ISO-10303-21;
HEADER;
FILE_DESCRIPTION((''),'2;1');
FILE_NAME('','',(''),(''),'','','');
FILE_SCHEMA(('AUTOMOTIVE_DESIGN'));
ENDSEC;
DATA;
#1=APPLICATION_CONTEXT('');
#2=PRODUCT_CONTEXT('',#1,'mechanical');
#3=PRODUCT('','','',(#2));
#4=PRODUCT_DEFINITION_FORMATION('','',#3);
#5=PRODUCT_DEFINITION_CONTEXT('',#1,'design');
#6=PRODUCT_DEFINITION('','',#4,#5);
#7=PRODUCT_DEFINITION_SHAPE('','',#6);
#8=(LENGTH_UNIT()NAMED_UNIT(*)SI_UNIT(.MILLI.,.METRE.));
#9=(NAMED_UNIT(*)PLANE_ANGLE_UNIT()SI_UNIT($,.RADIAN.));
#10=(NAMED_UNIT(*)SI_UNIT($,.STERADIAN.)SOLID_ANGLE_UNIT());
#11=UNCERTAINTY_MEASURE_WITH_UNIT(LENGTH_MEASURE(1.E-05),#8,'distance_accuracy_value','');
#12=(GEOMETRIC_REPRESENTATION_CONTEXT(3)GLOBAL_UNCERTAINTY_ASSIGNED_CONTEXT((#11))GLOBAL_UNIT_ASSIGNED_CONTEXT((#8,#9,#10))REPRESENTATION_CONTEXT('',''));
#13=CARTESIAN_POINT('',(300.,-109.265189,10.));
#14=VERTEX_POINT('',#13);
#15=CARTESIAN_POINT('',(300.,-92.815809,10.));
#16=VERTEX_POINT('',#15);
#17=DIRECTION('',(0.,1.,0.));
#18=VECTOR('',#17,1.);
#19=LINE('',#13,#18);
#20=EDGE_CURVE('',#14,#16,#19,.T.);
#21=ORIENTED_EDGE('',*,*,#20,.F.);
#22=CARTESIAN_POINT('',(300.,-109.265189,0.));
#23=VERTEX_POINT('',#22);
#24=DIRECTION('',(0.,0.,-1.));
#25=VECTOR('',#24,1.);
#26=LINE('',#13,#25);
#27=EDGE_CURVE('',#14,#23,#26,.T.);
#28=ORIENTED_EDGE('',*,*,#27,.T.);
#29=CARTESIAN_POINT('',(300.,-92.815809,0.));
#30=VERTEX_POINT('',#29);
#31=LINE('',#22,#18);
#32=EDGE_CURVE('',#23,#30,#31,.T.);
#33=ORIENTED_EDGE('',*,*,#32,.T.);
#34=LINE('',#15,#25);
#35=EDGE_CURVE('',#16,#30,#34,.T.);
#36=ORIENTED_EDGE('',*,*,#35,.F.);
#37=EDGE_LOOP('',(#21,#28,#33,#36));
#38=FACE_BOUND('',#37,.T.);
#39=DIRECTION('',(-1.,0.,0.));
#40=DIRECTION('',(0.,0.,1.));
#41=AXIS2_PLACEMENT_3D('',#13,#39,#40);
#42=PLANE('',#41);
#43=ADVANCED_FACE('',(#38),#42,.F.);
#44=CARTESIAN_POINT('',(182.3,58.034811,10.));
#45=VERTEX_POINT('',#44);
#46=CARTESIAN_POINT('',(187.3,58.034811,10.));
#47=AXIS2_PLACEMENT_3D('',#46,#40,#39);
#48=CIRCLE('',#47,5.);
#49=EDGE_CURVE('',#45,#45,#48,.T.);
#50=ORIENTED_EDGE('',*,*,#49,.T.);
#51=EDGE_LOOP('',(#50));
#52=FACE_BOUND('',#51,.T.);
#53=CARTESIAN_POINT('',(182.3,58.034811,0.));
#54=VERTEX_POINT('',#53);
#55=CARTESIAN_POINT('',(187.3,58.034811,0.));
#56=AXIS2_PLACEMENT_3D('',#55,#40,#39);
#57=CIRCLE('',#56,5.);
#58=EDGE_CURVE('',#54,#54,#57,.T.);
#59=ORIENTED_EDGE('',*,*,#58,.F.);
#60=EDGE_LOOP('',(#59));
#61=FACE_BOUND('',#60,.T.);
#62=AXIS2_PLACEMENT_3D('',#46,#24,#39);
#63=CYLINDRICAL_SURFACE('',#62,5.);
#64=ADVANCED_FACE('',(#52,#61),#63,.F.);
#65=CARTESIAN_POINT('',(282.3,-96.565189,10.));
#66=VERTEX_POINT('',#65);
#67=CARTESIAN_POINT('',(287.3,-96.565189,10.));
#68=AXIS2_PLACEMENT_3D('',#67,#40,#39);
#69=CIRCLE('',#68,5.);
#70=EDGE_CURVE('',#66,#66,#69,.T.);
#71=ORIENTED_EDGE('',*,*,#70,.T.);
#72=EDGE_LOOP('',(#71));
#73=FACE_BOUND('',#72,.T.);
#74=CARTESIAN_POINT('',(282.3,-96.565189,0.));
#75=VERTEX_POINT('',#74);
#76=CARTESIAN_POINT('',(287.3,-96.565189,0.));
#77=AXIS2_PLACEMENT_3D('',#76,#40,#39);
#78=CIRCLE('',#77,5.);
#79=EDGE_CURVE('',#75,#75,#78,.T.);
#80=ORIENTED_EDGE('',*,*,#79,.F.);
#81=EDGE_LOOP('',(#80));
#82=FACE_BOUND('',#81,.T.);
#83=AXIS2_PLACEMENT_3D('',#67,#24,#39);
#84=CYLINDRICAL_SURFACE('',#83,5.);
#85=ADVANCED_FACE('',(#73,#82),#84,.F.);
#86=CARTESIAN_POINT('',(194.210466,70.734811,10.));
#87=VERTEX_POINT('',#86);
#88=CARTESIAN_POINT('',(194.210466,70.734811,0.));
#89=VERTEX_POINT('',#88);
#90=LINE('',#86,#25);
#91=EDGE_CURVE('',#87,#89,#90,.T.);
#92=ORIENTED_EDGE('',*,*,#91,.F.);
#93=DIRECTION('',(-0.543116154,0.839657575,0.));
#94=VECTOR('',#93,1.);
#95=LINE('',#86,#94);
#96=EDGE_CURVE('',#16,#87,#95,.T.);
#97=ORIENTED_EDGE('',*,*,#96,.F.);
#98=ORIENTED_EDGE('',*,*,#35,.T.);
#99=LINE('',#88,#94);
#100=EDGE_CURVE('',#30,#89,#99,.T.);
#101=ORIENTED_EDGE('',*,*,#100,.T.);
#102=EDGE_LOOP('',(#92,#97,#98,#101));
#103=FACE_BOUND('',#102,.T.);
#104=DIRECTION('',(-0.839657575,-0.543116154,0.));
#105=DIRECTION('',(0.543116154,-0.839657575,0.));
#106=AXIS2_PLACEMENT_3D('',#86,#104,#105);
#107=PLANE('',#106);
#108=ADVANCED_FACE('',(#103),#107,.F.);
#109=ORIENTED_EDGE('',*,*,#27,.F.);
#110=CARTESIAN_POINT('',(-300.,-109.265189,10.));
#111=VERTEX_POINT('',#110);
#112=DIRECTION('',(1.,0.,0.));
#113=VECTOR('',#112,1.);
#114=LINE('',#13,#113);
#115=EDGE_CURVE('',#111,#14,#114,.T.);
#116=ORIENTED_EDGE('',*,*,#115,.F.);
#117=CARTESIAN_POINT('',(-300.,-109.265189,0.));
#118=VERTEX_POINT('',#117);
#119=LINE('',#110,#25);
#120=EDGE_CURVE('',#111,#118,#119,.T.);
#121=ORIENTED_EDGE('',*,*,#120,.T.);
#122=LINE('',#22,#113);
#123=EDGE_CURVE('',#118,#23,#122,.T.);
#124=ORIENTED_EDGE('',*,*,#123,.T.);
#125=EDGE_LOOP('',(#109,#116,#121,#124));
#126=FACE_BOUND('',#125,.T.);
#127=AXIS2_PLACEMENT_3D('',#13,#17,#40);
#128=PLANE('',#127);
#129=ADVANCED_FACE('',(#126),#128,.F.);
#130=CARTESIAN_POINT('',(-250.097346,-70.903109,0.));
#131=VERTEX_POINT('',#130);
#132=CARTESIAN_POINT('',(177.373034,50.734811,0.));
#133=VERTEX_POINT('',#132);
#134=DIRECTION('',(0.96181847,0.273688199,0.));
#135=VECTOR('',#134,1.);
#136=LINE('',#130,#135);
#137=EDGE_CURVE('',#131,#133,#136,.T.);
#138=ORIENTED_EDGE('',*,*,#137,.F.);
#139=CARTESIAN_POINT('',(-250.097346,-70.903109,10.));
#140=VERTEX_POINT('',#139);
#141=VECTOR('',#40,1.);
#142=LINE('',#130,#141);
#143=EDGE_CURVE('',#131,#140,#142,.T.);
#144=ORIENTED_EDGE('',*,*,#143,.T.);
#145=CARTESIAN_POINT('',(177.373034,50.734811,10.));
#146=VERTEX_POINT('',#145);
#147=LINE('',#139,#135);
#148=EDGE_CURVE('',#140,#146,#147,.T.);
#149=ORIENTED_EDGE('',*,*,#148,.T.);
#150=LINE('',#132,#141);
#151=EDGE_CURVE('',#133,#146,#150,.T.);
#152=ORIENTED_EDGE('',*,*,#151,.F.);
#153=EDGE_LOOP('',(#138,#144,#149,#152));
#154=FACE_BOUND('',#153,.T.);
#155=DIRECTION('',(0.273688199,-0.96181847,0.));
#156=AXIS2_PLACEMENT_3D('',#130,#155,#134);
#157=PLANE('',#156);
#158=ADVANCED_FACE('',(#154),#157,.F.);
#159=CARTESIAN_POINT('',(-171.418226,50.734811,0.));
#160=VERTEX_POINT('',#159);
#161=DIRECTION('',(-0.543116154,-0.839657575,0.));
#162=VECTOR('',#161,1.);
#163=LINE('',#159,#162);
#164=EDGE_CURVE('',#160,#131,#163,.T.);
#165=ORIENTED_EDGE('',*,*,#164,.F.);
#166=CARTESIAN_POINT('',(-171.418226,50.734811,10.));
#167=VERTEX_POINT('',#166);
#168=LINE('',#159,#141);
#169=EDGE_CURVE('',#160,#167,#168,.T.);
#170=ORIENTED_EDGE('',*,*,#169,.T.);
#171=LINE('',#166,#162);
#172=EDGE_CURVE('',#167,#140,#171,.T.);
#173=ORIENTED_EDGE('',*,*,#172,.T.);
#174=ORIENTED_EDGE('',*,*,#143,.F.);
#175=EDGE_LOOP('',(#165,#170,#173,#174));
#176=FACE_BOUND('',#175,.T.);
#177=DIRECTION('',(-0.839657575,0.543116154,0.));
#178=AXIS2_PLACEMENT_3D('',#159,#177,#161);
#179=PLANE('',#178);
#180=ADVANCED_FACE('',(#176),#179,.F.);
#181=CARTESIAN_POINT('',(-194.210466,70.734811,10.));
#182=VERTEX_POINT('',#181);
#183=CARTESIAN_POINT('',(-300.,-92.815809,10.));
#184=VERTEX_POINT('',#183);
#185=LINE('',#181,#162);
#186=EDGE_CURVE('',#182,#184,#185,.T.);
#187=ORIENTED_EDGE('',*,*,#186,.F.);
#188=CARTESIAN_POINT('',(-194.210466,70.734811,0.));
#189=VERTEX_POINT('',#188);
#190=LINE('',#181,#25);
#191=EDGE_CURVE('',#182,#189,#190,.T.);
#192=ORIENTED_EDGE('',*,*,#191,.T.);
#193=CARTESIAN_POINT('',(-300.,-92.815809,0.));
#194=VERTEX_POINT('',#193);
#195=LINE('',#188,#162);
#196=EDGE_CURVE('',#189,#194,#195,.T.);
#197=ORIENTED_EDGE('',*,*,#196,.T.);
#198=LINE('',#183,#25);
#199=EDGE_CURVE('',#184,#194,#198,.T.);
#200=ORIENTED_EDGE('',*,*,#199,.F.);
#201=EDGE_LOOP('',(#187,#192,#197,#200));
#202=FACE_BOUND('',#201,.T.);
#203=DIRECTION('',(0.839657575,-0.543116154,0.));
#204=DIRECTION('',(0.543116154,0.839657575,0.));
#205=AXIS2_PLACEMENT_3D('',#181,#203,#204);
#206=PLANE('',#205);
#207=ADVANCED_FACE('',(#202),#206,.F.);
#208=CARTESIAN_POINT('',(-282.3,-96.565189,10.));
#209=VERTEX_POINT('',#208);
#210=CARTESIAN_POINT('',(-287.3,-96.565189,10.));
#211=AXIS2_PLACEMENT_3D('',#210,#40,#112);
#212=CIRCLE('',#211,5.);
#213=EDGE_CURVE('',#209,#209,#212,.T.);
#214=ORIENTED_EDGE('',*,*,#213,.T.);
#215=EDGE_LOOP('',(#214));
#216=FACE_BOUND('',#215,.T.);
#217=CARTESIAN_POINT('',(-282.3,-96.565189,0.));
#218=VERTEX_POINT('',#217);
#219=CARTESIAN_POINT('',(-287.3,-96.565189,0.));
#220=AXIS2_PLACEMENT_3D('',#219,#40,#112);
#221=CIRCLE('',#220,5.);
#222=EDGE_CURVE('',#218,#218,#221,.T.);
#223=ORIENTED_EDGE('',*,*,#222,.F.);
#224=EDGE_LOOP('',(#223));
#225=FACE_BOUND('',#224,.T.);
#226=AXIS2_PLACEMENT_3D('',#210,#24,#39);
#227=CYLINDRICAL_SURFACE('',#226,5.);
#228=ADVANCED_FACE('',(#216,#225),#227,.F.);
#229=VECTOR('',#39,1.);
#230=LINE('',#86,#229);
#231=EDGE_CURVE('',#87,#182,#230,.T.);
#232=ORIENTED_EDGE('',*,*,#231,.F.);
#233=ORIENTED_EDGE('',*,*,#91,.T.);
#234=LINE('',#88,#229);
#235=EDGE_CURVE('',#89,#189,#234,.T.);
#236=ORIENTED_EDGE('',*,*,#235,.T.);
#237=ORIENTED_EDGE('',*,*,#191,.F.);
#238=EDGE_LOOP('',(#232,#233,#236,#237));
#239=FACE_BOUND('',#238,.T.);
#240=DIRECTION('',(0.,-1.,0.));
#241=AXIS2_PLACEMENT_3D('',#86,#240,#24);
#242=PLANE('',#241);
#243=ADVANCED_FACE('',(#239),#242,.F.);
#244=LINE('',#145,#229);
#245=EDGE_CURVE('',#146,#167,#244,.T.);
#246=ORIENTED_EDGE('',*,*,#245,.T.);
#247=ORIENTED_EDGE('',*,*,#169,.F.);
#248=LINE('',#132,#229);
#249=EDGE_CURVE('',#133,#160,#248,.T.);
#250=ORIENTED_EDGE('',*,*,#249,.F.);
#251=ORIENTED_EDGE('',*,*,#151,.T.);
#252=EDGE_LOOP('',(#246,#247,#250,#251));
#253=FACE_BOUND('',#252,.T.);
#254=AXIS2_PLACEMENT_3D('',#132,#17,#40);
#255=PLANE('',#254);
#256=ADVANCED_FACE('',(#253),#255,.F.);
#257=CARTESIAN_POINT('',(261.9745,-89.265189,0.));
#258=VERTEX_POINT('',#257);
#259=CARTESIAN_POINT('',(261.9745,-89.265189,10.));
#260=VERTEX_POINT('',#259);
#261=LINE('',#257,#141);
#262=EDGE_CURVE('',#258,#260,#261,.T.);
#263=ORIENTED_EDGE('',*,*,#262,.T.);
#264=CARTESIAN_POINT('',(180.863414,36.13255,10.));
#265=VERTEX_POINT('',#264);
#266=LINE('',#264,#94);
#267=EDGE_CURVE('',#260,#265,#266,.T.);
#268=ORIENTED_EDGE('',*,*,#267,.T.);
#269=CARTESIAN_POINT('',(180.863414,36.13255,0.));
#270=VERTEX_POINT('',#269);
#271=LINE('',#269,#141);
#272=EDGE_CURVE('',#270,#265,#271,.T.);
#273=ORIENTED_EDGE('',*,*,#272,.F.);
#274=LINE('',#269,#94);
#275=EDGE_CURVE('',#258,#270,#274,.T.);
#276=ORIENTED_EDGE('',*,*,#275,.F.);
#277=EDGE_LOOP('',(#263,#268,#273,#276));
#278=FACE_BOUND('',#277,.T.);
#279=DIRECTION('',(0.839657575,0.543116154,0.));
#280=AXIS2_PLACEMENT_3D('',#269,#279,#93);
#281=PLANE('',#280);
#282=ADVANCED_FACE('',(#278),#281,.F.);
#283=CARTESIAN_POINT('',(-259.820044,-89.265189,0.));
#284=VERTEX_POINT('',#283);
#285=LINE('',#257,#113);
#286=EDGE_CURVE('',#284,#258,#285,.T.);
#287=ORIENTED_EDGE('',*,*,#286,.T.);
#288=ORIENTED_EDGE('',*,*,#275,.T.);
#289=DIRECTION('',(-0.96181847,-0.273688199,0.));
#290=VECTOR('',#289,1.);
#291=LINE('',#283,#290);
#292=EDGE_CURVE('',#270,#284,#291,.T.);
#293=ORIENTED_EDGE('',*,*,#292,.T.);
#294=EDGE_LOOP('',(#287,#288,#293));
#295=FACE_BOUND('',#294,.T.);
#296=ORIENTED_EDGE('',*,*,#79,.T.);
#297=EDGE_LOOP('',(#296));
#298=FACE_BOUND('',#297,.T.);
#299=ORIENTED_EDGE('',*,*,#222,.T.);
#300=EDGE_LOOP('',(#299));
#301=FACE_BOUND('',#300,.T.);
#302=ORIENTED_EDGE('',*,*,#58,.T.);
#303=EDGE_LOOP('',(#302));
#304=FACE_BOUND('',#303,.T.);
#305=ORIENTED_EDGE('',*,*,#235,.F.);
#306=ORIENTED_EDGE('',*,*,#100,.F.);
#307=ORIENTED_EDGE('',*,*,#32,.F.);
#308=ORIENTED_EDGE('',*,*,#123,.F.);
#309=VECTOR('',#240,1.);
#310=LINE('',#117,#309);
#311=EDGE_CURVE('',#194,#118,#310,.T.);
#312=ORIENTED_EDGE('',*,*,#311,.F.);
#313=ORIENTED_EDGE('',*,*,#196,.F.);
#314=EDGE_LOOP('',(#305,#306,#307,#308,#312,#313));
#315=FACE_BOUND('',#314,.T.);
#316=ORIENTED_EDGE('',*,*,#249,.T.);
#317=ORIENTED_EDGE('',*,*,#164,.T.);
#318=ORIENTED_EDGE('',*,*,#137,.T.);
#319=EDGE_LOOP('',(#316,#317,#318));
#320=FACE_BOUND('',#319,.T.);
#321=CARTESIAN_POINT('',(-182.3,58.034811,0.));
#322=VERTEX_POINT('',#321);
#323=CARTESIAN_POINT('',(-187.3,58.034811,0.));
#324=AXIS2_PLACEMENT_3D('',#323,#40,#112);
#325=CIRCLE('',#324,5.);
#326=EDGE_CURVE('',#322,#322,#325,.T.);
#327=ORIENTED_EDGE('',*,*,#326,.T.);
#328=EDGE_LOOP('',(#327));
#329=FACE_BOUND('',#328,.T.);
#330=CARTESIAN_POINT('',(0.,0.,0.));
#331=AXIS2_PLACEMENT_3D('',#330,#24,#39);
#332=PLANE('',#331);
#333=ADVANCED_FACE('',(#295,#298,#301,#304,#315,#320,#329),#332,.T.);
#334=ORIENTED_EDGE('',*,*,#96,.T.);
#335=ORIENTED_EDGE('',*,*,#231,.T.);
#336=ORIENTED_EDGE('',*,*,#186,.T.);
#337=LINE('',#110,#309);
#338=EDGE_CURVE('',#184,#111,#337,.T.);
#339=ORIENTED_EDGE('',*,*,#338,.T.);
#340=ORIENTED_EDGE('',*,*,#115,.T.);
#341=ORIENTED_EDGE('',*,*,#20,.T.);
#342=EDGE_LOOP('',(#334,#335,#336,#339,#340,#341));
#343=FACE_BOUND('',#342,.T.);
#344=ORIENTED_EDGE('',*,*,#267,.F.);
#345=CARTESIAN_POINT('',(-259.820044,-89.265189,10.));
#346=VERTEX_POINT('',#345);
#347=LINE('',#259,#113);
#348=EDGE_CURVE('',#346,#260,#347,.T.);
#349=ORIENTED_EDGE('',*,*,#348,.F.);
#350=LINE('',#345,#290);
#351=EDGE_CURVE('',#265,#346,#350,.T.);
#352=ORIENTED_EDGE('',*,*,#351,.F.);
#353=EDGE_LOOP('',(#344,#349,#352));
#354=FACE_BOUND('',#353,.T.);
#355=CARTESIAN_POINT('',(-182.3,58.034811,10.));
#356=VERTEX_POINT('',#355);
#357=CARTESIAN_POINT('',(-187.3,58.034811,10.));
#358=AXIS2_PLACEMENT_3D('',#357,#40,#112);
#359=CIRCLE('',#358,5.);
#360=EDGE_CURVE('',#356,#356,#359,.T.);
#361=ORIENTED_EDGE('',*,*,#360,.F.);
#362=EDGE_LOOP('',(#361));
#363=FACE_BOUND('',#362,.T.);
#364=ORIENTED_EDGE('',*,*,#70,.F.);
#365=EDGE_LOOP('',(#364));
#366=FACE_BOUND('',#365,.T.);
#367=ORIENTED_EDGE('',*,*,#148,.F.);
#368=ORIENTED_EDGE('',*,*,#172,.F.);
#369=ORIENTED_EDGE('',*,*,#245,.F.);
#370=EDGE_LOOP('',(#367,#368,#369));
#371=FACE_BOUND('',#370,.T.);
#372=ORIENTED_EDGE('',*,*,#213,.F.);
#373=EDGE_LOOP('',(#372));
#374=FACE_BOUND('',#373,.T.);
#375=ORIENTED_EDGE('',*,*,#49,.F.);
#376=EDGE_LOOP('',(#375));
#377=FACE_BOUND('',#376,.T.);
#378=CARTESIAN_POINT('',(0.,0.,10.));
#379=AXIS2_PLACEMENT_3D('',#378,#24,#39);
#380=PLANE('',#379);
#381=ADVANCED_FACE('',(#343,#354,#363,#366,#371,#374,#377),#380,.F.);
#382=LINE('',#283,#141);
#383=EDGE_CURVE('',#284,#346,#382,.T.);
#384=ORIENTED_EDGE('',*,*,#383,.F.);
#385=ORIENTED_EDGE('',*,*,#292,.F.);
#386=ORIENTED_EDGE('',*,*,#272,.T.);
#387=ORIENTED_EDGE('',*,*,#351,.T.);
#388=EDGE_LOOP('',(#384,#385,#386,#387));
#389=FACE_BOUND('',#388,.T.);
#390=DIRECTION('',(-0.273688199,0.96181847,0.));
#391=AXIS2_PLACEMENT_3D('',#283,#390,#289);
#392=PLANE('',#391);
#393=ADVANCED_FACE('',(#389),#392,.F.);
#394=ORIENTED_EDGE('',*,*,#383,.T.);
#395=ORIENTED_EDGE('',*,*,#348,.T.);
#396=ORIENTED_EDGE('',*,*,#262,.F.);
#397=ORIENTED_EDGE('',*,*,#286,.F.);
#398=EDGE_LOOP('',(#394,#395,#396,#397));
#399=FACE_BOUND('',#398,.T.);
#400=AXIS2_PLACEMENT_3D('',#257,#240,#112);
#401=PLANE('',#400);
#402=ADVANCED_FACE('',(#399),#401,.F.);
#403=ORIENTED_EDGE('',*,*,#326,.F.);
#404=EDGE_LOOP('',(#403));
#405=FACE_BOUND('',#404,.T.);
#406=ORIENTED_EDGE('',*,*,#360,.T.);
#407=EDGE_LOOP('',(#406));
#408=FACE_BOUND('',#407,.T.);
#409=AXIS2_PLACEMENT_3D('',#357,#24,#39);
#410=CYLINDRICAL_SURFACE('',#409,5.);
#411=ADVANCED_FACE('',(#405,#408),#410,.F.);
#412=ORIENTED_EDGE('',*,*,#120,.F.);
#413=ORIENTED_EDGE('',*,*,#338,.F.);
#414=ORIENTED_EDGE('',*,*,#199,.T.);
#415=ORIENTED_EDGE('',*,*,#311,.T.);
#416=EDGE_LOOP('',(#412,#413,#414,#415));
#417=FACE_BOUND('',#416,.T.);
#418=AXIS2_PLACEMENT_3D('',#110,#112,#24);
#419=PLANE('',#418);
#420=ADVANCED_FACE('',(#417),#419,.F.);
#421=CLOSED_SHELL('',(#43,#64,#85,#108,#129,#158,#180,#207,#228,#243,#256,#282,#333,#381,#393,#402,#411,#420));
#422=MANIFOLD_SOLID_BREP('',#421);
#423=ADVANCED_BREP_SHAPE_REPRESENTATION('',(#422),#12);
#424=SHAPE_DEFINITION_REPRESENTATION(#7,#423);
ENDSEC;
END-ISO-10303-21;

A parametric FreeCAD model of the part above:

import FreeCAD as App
import Part
import Sketcher

V = App.Vector
Q = App.Units.Quantity

doc = App.newDocument("Part")
params = doc.addObject("Spreadsheet::Sheet", "Params")
for row, (alias, value) in enumerate([
    ("sketch1_diameter", "10 mm"),
    ("sketch1_width", "600 mm"),
    ("pad1_length", "10 mm"),
], start=1):
    params.set(f"A{row}", alias)
    params.set(f"B{row}", "=" + value)
    params.setAlias(f"B{row}", alias)

body = doc.addObject("PartDesign::Body", "Body")

sketch1 = body.newObject("Sketcher::SketchObject", "Sketch")
sketch1.AttachmentSupport = (doc.getObject("XY_Plane"), [""])
sketch1.MapMode = "FlatFace"
sketch1.addGeometry(Part.LineSegment(V(300, -109, 0), V(300, -93, 0)), False)
sketch1.addGeometry(Part.LineSegment(V(300, -93, 0), V(194, 71, 0)), False)
sketch1.addGeometry(Part.LineSegment(V(194, 71, 0), V(-194, 71, 0)), False)
sketch1.addGeometry(Part.LineSegment(V(-194, 71, 0), V(-300, -93, 0)), False)
sketch1.addGeometry(Part.LineSegment(V(-300, -93, 0), V(-300, -109, 0)), False)
sketch1.addGeometry(Part.LineSegment(V(-300, -109, 0), V(300, -109, 0)), False)
sketch1.addGeometry(Part.Circle(V(-287, -97, 0), V(0, 0, 1), 5), False)
sketch1.addGeometry(Part.Circle(V(287, -97, 0), V(0, 0, 1), 5), False)
sketch1.addGeometry(Part.Circle(V(-187, 58, 0), V(0, 0, 1), 5), False)
sketch1.addGeometry(Part.Circle(V(187, 58, 0), V(0, 0, 1), 5), False)
sketch1.addConstraint(Sketcher.Constraint("Coincident", 0, 2, 1, 1))
sketch1.addConstraint(Sketcher.Constraint("Coincident", 1, 2, 2, 1))
sketch1.addConstraint(Sketcher.Constraint("Coincident", 2, 2, 3, 1))
sketch1.addConstraint(Sketcher.Constraint("Coincident", 3, 2, 4, 1))
sketch1.addConstraint(Sketcher.Constraint("Coincident", 4, 2, 5, 1))
sketch1.addConstraint(Sketcher.Constraint("Coincident", 5, 2, 0, 1))
sketch1.addConstraint(Sketcher.Constraint("Vertical", 0))
sketch1.addConstraint(Sketcher.Constraint("Horizontal", 2))
sketch1.addConstraint(Sketcher.Constraint("Vertical", 4))
sketch1.addConstraint(Sketcher.Constraint("Horizontal", 5))
sketch1.addConstraint(Sketcher.Constraint("Equal", 6, 7))
sketch1.addConstraint(Sketcher.Constraint("Equal", 7, 8))
sketch1.addConstraint(Sketcher.Constraint("Equal", 8, 9))
sketch1.addConstraint(Sketcher.Constraint("Symmetric", 6, 3, 7, 3, -2))
sketch1.addConstraint(Sketcher.Constraint("Symmetric", 8, 3, 9, 3, -2))
sketch1.addConstraint(Sketcher.Constraint("Symmetric", 0, 2, 3, 2, -2))
sketch1.addConstraint(Sketcher.Constraint("Equal", 1, 3))
sketch1.addConstraint(Sketcher.Constraint("Diameter", 6, Q("10 mm")))
sketch1.addConstraint(Sketcher.Constraint("DistanceX", 5, 1, 5, 2, Q("600 mm")))
sketch1.addConstraint(Sketcher.Constraint("DistanceX", 6, 3, 8, 3, Q("100 mm")))
sketch1.addConstraint(Sketcher.Constraint("DistanceY", 4, 2, 2, 2, Q("180 mm")))
sketch1.addConstraint(Sketcher.Constraint("DistanceX", 6, 3, -1, 1, Q("287.3 mm")))
sketch1.addConstraint(Sketcher.Constraint("DistanceY", 6, 3, 8, 3, Q("154.6 mm")))
sketch1.addConstraint(Sketcher.Constraint("DistanceY", 9, 3, 1, 2, Q("12.7 mm")))
sketch1.addConstraint(Sketcher.Constraint("DistanceX", 2, 2, 2, 1, Q("388.420931 mm")))
sketch1.addConstraint(Sketcher.Constraint("DistanceY", 0, 1, 0, 2, Q("16.44938 mm")))
sketch1.addConstraint(Sketcher.Constraint("DistanceY", 6, 3, -1, 1, Q("96.565189 mm")))
sketch1.setExpression("Constraints[17]", "Params.sketch1_diameter")
sketch1.setExpression("Constraints[18]", "Params.sketch1_width")
pad1 = body.newObject("PartDesign::Pad", "Pad")
pad1.Profile = sketch1
pad1.setExpression("Length", "Params.pad1_length")

sketch2 = body.newObject("Sketcher::SketchObject", "Sketch001")
sketch2.AttachmentSupport = (doc.getObject("XY_Plane"), [""])
sketch2.MapMode = "FlatFace"
sketch2.AttachmentOffset = App.Placement(V(0, 0, 10), App.Rotation())
sketch2.addGeometry(Part.LineSegment(V(262, -89, 0), V(181, 36, 0)), False)
sketch2.addGeometry(Part.LineSegment(V(181, 36, 0), V(-260, -89, 0)), False)
sketch2.addGeometry(Part.LineSegment(V(-260, -89, 0), V(262, -89, 0)), False)
sketch2.addGeometry(Part.LineSegment(V(-250, -71, 0), V(177, 51, 0)), False)
sketch2.addGeometry(Part.LineSegment(V(177, 51, 0), V(-171, 51, 0)), False)
sketch2.addGeometry(Part.LineSegment(V(-171, 51, 0), V(-250, -71, 0)), False)
sketch2.addConstraint(Sketcher.Constraint("Coincident", 0, 2, 1, 1))
sketch2.addConstraint(Sketcher.Constraint("Coincident", 1, 2, 2, 1))
sketch2.addConstraint(Sketcher.Constraint("Coincident", 2, 2, 0, 1))
sketch2.addConstraint(Sketcher.Constraint("Coincident", 3, 2, 4, 1))
sketch2.addConstraint(Sketcher.Constraint("Coincident", 4, 2, 5, 1))
sketch2.addConstraint(Sketcher.Constraint("Coincident", 5, 2, 3, 1))
sketch2.addConstraint(Sketcher.Constraint("Horizontal", 2))
sketch2.addConstraint(Sketcher.Constraint("Horizontal", 4))
sketch2.addConstraint(Sketcher.Constraint("Parallel", 1, 3))
sketch2.addConstraint(Sketcher.Constraint("DistanceY", 2, 2, 3, 2, Q("140 mm")))
sketch2.addConstraint(Sketcher.Constraint("DistanceX", 4, 2, 4, 1, Q("348.79126 mm")))
sketch2.addConstraint(Sketcher.Constraint("DistanceX", -1, 1, 2, 2, Q("261.9745 mm")))
sketch2.addConstraint(Sketcher.Constraint("Distance", 1, Q("458.17737 mm")))
sketch2.addConstraint(Sketcher.Constraint("Distance", 3, Q("444.439771 mm")))
sketch2.addConstraint(Sketcher.Constraint("DistanceX", 2, 1, 2, 2, Q("521.794543 mm")))
sketch2.addConstraint(Sketcher.Constraint("DistanceY", -1, 1, 0, 2, Q("36.13255 mm")))
sketch2.addConstraint(Sketcher.Constraint("DistanceY", 1, 2, -1, 1, Q("89.265189 mm")))
sketch2.addConstraint(Sketcher.Constraint("DistanceX", 3, 2, 0, 2, Q("3.49038 mm")))
pocket1 = body.newObject("PartDesign::Pocket", "Pocket")
pocket1.Profile = sketch2
pocket1.Type = "ThroughAll"

doc.recompute()
